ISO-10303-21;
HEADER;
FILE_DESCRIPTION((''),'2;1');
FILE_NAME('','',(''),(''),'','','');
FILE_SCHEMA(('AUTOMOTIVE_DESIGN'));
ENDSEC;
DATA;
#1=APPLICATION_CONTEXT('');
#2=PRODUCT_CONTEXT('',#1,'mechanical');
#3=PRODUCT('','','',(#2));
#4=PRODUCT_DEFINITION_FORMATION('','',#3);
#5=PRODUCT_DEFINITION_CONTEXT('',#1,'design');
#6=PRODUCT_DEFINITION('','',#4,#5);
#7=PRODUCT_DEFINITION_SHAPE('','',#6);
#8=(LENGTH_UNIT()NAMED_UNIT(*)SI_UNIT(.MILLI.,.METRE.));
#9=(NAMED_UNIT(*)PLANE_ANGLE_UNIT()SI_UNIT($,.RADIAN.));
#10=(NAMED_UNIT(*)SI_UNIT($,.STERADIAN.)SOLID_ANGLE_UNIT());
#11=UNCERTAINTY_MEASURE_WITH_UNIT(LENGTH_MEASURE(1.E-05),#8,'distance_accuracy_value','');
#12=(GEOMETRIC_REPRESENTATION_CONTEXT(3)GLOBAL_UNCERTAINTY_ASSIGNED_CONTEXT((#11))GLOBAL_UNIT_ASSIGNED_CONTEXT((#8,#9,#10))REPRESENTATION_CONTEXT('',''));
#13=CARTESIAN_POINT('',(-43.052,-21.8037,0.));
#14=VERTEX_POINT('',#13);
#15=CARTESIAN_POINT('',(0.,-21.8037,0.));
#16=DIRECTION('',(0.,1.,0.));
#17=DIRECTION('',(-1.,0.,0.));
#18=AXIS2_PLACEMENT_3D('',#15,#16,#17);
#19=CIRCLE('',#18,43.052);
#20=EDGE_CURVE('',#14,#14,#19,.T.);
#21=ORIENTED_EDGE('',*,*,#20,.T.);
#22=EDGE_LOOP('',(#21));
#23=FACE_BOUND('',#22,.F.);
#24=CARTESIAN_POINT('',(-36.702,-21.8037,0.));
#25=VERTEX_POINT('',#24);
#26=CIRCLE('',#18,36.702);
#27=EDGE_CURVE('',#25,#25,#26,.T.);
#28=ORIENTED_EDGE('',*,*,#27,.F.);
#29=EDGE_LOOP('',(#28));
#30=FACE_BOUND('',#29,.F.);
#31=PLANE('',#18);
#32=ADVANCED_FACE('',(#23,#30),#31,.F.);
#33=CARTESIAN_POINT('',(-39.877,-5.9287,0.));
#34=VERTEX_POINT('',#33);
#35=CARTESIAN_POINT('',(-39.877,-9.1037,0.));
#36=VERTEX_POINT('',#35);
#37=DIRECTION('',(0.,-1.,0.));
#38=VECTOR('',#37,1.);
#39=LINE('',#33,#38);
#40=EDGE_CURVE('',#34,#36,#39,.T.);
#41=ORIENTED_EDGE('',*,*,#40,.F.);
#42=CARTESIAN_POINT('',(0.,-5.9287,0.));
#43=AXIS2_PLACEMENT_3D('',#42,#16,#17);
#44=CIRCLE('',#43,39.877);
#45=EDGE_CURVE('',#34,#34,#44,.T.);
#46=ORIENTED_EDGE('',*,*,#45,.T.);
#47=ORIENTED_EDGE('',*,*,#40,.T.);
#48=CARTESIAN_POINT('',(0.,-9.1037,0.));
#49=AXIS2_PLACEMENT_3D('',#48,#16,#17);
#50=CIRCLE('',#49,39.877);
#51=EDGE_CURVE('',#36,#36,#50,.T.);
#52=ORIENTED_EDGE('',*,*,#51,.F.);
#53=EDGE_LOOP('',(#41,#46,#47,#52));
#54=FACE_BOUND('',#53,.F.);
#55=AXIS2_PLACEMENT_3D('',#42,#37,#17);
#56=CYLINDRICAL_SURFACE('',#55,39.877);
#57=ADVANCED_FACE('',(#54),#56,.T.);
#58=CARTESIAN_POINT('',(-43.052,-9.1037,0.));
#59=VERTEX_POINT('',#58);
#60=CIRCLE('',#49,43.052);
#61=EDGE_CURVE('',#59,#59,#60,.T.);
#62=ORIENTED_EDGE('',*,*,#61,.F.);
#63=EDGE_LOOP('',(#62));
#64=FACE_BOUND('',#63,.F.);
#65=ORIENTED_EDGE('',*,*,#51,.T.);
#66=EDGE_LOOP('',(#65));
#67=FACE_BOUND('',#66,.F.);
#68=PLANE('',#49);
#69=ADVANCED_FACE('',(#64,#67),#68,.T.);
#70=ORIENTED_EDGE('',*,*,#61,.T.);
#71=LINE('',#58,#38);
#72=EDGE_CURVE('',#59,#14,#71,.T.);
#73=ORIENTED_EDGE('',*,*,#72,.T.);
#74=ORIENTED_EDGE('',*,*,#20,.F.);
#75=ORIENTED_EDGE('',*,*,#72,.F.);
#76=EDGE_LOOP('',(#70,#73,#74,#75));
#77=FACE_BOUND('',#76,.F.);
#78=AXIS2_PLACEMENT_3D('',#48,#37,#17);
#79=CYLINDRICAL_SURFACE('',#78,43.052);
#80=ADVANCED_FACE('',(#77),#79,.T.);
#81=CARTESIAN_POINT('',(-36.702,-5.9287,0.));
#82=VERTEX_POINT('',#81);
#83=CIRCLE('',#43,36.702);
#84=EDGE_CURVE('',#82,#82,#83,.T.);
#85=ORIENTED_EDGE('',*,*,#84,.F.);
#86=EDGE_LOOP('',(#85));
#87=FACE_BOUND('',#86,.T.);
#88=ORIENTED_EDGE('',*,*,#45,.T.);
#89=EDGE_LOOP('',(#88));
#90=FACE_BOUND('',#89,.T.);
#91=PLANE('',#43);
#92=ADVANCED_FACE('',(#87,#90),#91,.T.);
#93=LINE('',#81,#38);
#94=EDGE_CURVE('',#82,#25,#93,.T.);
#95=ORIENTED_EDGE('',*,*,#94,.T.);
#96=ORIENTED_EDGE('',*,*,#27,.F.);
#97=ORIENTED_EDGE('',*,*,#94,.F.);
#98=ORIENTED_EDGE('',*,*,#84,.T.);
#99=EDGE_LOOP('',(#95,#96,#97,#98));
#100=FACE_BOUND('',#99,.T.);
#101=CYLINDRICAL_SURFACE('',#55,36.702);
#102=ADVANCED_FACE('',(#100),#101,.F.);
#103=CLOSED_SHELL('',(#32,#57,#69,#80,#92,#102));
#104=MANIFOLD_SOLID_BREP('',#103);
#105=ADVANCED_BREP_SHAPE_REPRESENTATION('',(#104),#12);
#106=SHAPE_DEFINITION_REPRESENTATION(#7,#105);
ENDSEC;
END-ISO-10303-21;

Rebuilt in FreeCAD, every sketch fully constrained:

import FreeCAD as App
import Part
import Sketcher

V = App.Vector
Q = App.Units.Quantity

doc = App.newDocument("Part")
body = doc.addObject("PartDesign::Body", "Body")

# Sketch on XY plane
sketch1 = body.newObject("Sketcher::SketchObject", "Sketch")
sketch1.AttachmentSupport = (doc.getObject("XY_Plane"), [""])
sketch1.MapMode = "FlatFace"
sketch1.addGeometry(Part.LineSegment(V(-36.7, -5.9, 0), V(-39.9, -5.9, 0)), False)
sketch1.addGeometry(Part.LineSegment(V(-39.9, -5.9, 0), V(-39.9, -9.1, 0)), False)
sketch1.addGeometry(Part.LineSegment(V(-39.9, -9.1, 0), V(-43.1, -9.1, 0)), False)
sketch1.addGeometry(Part.LineSegment(V(-43.1, -9.1, 0), V(-43.1, -21.8, 0)), False)
sketch1.addGeometry(Part.LineSegment(V(-43.1, -21.8, 0), V(-36.7, -21.8, 0)), False)
sketch1.addGeometry(Part.LineSegment(V(-36.7, -21.8, 0), V(-36.7, -5.9, 0)), False)
sketch1.addConstraint(Sketcher.Constraint("Coincident", 0, 2, 1, 1))
sketch1.addConstraint(Sketcher.Constraint("Coincident", 1, 2, 2, 1))
sketch1.addConstraint(Sketcher.Constraint("Coincident", 2, 2, 3, 1))
sketch1.addConstraint(Sketcher.Constraint("Coincident", 3, 2, 4, 1))
sketch1.addConstraint(Sketcher.Constraint("Coincident", 4, 2, 5, 1))
sketch1.addConstraint(Sketcher.Constraint("Coincident", 5, 2, 0, 1))
sketch1.addConstraint(Sketcher.Constraint("Horizontal", 0))
sketch1.addConstraint(Sketcher.Constraint("Vertical", 1))
sketch1.addConstraint(Sketcher.Constraint("Horizontal", 2))
sketch1.addConstraint(Sketcher.Constraint("Vertical", 3))
sketch1.addConstraint(Sketcher.Constraint("Horizontal", 4))
sketch1.addConstraint(Sketcher.Constraint("Vertical", 5))
sketch1.addConstraint(Sketcher.Constraint("Equal", 0, 2))
sketch1.addConstraint(Sketcher.Constraint("Equal", 2, 1))
sketch1.addConstraint(Sketcher.Constraint("DistanceY", 3, 2, 3, 1, Q("0.5 in")))
sketch1.addConstraint(Sketcher.Constraint("DistanceX", 4, 1, 4, 2, Q("0.25 in")))
sketch1.addConstraint(Sketcher.Constraint("DistanceX", 0, 2, -1, 1, 39.877))
sketch1.addConstraint(Sketcher.Constraint("DistanceY", 0, 2, -1, 1, 5.9287))
revolution = body.newObject("PartDesign::Revolution", "Revolution")
revolution.Profile = sketch1
revolution.ReferenceAxis = (sketch1, ["V_Axis"])
revolution.Angle = 360

doc.recompute()
